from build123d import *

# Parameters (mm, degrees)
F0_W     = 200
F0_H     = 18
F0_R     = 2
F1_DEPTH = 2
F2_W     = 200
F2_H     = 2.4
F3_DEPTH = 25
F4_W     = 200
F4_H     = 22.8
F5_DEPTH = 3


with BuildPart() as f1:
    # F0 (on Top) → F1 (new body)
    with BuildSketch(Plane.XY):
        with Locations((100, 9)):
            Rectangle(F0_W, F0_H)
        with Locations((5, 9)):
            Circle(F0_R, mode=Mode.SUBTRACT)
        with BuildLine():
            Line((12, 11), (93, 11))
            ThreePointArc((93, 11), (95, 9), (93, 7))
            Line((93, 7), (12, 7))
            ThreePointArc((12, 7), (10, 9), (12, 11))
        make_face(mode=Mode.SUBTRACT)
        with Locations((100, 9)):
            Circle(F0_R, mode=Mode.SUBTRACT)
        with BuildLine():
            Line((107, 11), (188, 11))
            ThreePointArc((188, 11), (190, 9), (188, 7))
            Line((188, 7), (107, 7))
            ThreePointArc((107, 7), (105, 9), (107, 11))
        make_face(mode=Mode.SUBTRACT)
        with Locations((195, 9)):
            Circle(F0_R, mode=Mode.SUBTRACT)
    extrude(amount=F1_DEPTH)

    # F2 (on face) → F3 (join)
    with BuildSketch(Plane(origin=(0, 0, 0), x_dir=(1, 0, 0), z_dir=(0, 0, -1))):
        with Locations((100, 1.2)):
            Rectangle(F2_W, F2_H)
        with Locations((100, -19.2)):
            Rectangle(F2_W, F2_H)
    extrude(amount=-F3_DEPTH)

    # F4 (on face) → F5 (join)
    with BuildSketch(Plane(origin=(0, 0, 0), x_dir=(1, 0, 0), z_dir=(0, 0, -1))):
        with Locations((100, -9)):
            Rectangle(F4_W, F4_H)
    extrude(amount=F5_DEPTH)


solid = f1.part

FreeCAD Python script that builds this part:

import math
import FreeCAD as App
import Part
import Sketcher

V = App.Vector


def add_polygon(sketch, points):
    """Adds a closed chain of lines whose ends are joined by coincident constraints."""
    first, n = sketch.GeometryCount, len(points)
    for a, b in zip(points, points[1:] + points[:1]):
        sketch.addGeometry(Part.LineSegment(App.Vector(*a, 0), App.Vector(*b, 0)), False)
    for i in range(n):
        sketch.addConstraint(Sketcher.Constraint("Coincident", first + i, 2, first + (i + 1) % n, 1))

doc = App.newDocument("Part")
params = doc.addObject("Spreadsheet::Sheet", "Params")
for row, (alias, value) in enumerate([
    ("sketch1_diameter", "4 mm"),
    ("sketch1_width", "200 mm"),
    ("sketch1_width2", "81 mm"),
    ("sketch1_height", "18 mm"),
    ("pad1_length", "2 mm"),
    ("sketch2_width", "200 mm"),
    ("sketch2_height", "2.4 mm"),
    ("pad2_length", "25 mm"),
    ("sketch3_width", "200 mm"),
    ("sketch3_height", "22.8 mm"),
    ("pad3_length", "3 mm"),
], start=1):
    params.set(f"A{row}", alias)
    params.set(f"B{row}", "=" + value)
    params.setAlias(f"B{row}", alias)

body = doc.addObject("PartDesign::Body", "Body")

sketch1 = doc.addObject("Sketcher::SketchObject", "Sketch")
body.addObject(sketch1)
sketch1.AttachmentSupport = (doc.XY_Plane, [""])
sketch1.MapMode = "FlatFace"
add_polygon(sketch1, [(0, 18), (0, 0), (200, 0), (200, 18)])
sketch1.addGeometry(Part.Circle(V(5, 9, 0), V(0, 0, 1), 2), False)
sketch1.addGeometry(Part.ArcOfCircle(Part.Circle(V(12, 9, 0), V(0, 0, 1), 2), math.radians(90), math.radians(270)), False)
sketch1.addGeometry(Part.LineSegment(V(12, 11, 0), V(93, 11, 0)), False)
sketch1.addGeometry(Part.ArcOfCircle(Part.Circle(V(93, 9, 0), V(0, 0, 1), 2), math.radians(-90), math.radians(90)), False)
sketch1.addGeometry(Part.LineSegment(V(93, 7, 0), V(12, 7, 0)), False)
sketch1.addGeometry(Part.Circle(V(100, 9, 0), V(0, 0, 1), 2), False)
sketch1.addGeometry(Part.ArcOfCircle(Part.Circle(V(107, 9, 0), V(0, 0, 1), 2), math.radians(90), math.radians(270)), False)
sketch1.addGeometry(Part.LineSegment(V(107, 11, 0), V(188, 11, 0)), False)
sketch1.addGeometry(Part.ArcOfCircle(Part.Circle(V(188, 9, 0), V(0, 0, 1), 2), math.radians(-90), math.radians(90)), False)
sketch1.addGeometry(Part.LineSegment(V(188, 7, 0), V(107, 7, 0)), False)
sketch1.addGeometry(Part.Circle(V(195, 9, 0), V(0, 0, 1), 2), False)
sketch1.addConstraint([
    Sketcher.Constraint("Tangent", 5, 1, 6, 1),
    Sketcher.Constraint("Tangent", 6, 2, 7, 2),
    Sketcher.Constraint("Tangent", 7, 1, 8, 1),
    Sketcher.Constraint("Tangent", 8, 2, 5, 2),
    Sketcher.Constraint("Tangent", 10, 1, 11, 1),
    Sketcher.Constraint("Tangent", 11, 2, 12, 2),
    Sketcher.Constraint("Tangent", 12, 1, 13, 1),
    Sketcher.Constraint("Tangent", 13, 2, 10, 2),
    Sketcher.Constraint("Vertical", 0),
    Sketcher.Constraint("Horizontal", 1),
    Sketcher.Constraint("Vertical", 2),
    Sketcher.Constraint("Horizontal", 3),
    Sketcher.Constraint("Horizontal", 6),
    Sketcher.Constraint("Horizontal", 8),
    Sketcher.Constraint("Horizontal", 11),
    Sketcher.Constraint("Horizontal", 13),
    Sketcher.Constraint("Coincident", 0, 2, -1, 1),
    Sketcher.Constraint("Equal", 4, 5),
    Sketcher.Constraint("Equal", 7, 9),
    Sketcher.Constraint("Equal", 9, 10),
    Sketcher.Constraint("Equal", 12, 14),
    Sketcher.Constraint("Horizontal", 4, 3, 5, 3),
    Sketcher.Constraint("Horizontal", 7, 3, 9, 3),
    Sketcher.Constraint("Horizontal", 9, 3, 10, 3),
    Sketcher.Constraint("Horizontal", 12, 3, 14, 3),
    Sketcher.Constraint("Equal", 8, 11),
    Sketcher.Constraint("Diameter", 4, 4.0),
    Sketcher.Constraint("DistanceX", 1, 1, 1, 2, 200.0),
    Sketcher.Constraint("DistanceX", 6, 1, 6, 2, 81.0),
    Sketcher.Constraint("DistanceY", 0, 2, 0, 1, 18.0),
    Sketcher.Constraint("DistanceX", -1, 1, 4, 3, 5.0),
    Sketcher.Constraint("DistanceY", -1, 1, 4, 3, 9.0),
    Sketcher.Constraint("DistanceX", -1, 1, 5, 3, 12.0),
    Sketcher.Constraint("DistanceX", -1, 1, 9, 3, 100.0),
    Sketcher.Constraint("DistanceX", -1, 1, 10, 3, 107.0),
    Sketcher.Constraint("DistanceX", -1, 1, 14, 3, 195.0),
])
sketch1.setExpression("Constraints[30]", "Params.sketch1_diameter")
sketch1.setExpression("Constraints[31]", "Params.sketch1_width")
sketch1.setExpression("Constraints[32]", "Params.sketch1_width2")
sketch1.setExpression("Constraints[33]", "Params.sketch1_height")
pad1 = doc.addObject("PartDesign::Pad", "Pad")
body.addObject(pad1)
pad1.Profile = sketch1
pad1.setExpression("Length", "Params.pad1_length")

sketch2 = doc.addObject("Sketcher::SketchObject", "Sketch001")
body.addObject(sketch2)
sketch2.AttachmentSupport = (doc.XY_Plane, [""])
sketch2.MapMode = "FlatFace"
add_polygon(sketch2, [(0, -2.4), (0, 0), (200, 0), (200, -2.4)])
add_polygon(sketch2, [(0, 18), (0, 20.4), (200, 20.4), (200, 18)])
sketch2.addConstraint([
    Sketcher.Constraint("Vertical", 0),
    Sketcher.Constraint("Horizontal", 1),
    Sketcher.Constraint("Vertical", 2),
    Sketcher.Constraint("Horizontal", 3),
    Sketcher.Constraint("Vertical", 4),
    Sketcher.Constraint("Horizontal", 5),
    Sketcher.Constraint("Vertical", 6),
    Sketcher.Constraint("Horizontal", 7),
    Sketcher.Constraint("Coincident", 0, 2, -1, 1),
    Sketcher.Constraint("PointOnObject", 4, 2, -2),
    Sketcher.Constraint("Vertical", 2, 2, 5, 2),
    Sketcher.Constraint("Equal", 2, 4),
    Sketcher.Constraint("DistanceX", 1, 1, 1, 2, 200.0),
    Sketcher.Constraint("DistanceY", 0, 1, 0, 2, 2.4),
    Sketcher.Constraint("DistanceY", -1, 1, 6, 2, 18.0),
])
sketch2.setExpression("Constraints[20]", "Params.sketch2_width")
sketch2.setExpression("Constraints[21]", "Params.sketch2_height")
pad2 = doc.addObject("PartDesign::Pad", "Pad001")
body.addObject(pad2)
pad2.Profile = sketch2
pad2.setExpression("Length", "Params.pad2_length")

sketch3 = doc.addObject("Sketcher::SketchObject", "Sketch002")
body.addObject(sketch3)
sketch3.AttachmentSupport = (doc.XY_Plane, [""])
sketch3.MapMode = "FlatFace"
add_polygon(sketch3, [(0, -2), (0, 20), (200, 20), (200, -2)])
sketch3.addConstraint([
    Sketcher.Constraint("Vertical", 0),
    Sketcher.Constraint("Horizontal", 1),
    Sketcher.Constraint("Vertical", 2),
    Sketcher.Constraint("Horizontal", 3),
    Sketcher.Constraint("PointOnObject", 0, 2, -2),
    Sketcher.Constraint("DistanceX", 1, 1, 1, 2, 200.0),
    Sketcher.Constraint("DistanceY", 0, 1, 0, 2, 22.8),
    Sketcher.Constraint("DistanceY", -1, 1, 0, 2, 20.4),
])
sketch3.setExpression("Constraints[9]", "Params.sketch3_width")
sketch3.setExpression("Constraints[10]", "Params.sketch3_height")
pad3 = doc.addObject("PartDesign::Pad", "Pad002")
body.addObject(pad3)
pad3.Profile = sketch3
pad3.setExpression("Length", "Params.pad3_length")
pad3.Reversed = True

doc.recompute()
